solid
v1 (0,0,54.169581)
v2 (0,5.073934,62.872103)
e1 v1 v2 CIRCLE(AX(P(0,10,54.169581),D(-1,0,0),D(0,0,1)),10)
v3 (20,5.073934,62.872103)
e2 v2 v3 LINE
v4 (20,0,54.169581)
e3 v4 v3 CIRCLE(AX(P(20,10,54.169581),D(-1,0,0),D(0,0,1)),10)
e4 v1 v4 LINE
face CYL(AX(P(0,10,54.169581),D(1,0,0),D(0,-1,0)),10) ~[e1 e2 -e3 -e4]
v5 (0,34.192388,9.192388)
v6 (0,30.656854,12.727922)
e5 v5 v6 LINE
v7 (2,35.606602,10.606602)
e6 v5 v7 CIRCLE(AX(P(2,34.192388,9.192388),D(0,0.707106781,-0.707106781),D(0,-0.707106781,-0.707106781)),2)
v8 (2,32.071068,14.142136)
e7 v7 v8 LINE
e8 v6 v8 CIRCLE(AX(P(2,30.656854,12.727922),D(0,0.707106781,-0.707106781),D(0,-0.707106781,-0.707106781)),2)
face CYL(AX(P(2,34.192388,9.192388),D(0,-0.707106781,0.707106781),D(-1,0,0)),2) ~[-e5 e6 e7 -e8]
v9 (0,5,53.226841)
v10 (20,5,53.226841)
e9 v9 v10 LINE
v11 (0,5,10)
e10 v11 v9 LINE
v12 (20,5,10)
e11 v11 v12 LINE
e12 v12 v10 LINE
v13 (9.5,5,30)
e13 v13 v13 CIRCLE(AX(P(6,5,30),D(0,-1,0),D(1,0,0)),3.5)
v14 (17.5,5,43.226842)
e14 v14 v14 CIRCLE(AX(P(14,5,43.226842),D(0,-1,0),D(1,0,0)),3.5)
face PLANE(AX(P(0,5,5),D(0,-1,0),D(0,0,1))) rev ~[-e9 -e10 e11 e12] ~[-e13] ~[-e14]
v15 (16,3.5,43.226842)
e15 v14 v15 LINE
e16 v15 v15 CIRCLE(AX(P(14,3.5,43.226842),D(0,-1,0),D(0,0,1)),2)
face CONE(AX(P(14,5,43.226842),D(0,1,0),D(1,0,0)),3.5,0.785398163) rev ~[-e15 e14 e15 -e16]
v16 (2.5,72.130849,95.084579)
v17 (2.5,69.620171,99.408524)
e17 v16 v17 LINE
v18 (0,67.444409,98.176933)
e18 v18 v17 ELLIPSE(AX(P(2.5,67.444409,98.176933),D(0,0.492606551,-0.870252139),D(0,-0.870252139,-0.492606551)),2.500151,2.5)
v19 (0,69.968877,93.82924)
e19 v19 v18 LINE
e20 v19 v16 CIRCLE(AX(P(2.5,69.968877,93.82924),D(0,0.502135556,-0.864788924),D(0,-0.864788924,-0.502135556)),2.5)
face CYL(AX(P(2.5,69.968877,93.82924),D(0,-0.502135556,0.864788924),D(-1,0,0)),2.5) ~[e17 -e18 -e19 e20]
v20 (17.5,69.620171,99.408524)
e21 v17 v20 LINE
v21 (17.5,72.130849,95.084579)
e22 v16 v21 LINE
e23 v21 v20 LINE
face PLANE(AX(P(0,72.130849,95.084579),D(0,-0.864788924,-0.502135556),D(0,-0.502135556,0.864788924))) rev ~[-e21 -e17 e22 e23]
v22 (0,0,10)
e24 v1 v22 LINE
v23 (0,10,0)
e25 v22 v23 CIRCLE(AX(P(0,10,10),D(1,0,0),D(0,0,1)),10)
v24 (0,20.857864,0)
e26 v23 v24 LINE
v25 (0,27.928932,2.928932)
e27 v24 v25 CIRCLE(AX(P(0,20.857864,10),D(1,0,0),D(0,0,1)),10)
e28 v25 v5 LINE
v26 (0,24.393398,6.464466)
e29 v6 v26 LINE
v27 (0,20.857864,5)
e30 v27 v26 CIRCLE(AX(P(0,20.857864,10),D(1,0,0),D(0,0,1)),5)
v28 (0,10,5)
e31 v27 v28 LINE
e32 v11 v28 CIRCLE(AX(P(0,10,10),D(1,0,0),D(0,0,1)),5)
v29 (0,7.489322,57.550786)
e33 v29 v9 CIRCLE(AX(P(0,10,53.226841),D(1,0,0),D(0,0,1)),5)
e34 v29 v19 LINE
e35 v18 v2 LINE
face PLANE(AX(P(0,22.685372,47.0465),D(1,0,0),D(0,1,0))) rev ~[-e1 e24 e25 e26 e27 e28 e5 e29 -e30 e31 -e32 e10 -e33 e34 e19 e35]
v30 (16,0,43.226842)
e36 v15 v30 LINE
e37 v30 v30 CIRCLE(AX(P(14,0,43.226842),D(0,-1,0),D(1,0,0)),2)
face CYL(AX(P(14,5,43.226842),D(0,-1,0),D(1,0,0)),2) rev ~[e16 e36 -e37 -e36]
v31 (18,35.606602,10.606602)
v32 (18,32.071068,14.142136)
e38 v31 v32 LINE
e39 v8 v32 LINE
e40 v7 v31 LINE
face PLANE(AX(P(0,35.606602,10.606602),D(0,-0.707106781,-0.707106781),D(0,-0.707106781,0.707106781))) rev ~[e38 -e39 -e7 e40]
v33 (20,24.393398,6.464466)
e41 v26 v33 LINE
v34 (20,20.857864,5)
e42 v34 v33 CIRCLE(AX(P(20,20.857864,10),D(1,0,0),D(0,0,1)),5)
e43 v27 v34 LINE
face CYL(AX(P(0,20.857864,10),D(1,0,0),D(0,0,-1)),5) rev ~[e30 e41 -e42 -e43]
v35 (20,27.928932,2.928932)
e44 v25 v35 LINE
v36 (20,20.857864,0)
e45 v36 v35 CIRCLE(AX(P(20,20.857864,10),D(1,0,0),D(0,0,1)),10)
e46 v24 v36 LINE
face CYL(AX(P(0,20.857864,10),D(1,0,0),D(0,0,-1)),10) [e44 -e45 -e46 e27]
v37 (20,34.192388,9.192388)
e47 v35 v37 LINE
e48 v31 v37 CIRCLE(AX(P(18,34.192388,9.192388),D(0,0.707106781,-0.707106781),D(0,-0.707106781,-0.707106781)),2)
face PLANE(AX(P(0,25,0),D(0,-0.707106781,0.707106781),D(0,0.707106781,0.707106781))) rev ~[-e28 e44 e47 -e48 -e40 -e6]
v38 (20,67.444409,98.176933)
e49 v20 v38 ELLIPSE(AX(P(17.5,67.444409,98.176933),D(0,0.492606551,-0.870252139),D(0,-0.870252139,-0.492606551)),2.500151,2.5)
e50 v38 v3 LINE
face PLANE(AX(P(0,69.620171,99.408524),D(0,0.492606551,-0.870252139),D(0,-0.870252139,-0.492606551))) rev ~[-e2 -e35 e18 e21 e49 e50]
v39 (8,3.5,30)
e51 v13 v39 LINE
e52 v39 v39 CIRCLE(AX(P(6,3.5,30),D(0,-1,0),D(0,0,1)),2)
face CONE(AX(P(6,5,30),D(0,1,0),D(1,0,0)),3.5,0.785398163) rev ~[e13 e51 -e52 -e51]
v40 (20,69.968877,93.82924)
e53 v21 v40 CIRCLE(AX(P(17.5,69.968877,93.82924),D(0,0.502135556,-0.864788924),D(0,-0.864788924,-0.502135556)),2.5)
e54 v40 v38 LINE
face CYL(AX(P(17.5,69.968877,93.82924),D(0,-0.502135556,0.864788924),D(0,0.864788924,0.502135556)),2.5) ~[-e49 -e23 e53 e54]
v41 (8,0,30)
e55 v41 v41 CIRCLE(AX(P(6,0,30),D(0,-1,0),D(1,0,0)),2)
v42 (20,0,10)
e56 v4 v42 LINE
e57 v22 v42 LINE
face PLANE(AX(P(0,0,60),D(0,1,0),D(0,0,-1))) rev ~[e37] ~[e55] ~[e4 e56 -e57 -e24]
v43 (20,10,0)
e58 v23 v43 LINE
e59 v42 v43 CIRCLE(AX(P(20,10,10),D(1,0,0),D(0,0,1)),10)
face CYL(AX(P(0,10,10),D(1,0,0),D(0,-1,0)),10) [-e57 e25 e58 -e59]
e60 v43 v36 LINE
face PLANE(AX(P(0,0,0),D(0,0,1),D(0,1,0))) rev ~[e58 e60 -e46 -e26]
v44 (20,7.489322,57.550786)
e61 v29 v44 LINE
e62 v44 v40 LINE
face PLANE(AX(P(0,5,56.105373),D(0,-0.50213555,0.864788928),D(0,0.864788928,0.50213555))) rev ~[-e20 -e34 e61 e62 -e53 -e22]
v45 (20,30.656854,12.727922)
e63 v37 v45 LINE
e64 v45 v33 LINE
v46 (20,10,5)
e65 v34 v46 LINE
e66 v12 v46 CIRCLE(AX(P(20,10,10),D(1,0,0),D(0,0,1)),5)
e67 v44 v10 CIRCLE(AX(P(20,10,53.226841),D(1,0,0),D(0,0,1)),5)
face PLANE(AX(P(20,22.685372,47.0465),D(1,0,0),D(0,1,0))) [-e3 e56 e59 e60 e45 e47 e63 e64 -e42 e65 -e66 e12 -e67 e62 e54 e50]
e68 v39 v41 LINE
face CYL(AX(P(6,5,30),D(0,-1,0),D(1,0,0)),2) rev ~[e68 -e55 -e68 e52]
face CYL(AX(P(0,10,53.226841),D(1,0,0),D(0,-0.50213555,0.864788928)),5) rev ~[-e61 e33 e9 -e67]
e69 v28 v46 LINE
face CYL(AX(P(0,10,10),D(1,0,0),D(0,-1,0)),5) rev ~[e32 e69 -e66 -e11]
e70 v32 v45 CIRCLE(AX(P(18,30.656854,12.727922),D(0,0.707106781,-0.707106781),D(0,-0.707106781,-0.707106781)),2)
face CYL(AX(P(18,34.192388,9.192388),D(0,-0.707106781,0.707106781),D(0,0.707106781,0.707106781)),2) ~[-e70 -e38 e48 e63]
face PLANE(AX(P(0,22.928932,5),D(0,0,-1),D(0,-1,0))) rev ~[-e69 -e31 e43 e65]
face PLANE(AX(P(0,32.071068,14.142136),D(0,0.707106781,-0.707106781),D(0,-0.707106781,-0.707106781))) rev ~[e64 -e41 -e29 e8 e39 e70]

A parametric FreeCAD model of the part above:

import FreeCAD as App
import Part
import Sketcher
Q = App.Units.Quantity


def edges_at(feature, points):
    """Names of the edges that pass closest to the given points."""
    edges = feature.Shape.Edges
    near = lambda p: min(range(len(edges)), key=lambda i: edges[i].distToShape(Part.Vertex(*p))[0])
    return sorted({f"Edge{near(p) + 1}" for p in points})


def add_polygon(sketch, points):
    """Adds a closed chain of lines whose ends are joined by coincident constraints."""
    first, n = sketch.GeometryCount, len(points)
    for a, b in zip(points, points[1:] + points[:1]):
        sketch.addGeometry(Part.LineSegment(App.Vector(*a, 0), App.Vector(*b, 0)), False)
    for i in range(n):
        sketch.addConstraint(Sketcher.Constraint("Coincident", first + i, 2, first + (i + 1) % n, 1))

doc = App.newDocument("Part")
body = doc.addObject("PartDesign::Body", "Body")

# Sketch on YZ plane
sketch1 = body.newObject("Sketcher::SketchObject", "Sketch")
sketch1.AttachmentSupport = (doc.getObject("YZ_Plane"), [""])
sketch1.MapMode = "FlatFace"
add_polygon(sketch1, [(0, 60), (0, 0), (25, 0), (36, 11), (32, 14), (23, 5), (5, 5), (5, 56), (72, 95), (70, 99)])  # lines 0-9
sketch1.addConstraint([
    Sketcher.Constraint("Vertical", 0),
    Sketcher.Constraint("Horizontal", 1),
    Sketcher.Constraint("Horizontal", 5),
    Sketcher.Constraint("Vertical", 6),
    Sketcher.Constraint("Coincident", 0, 2, -1, 1),
    Sketcher.Constraint("Perpendicular", 2, 3),
    Sketcher.Constraint("Perpendicular", 3, 4),
    Sketcher.Constraint("Perpendicular", 7, 8),
    Sketcher.Constraint("Equal", 3, 8),
    Sketcher.Constraint("DistanceX", 1, 1, 1, 2, 25.0),
    Sketcher.Constraint("DistanceY", 0, 2, 0, 1, 60.0),
    Sketcher.Constraint("Angle", 2, Q("45 deg")),
    Sketcher.Constraint("Distance", 2, 15.0),
    Sketcher.Constraint("Distance", 3, 5.0),
    Sketcher.Constraint("Distance", 9, 80.0),
    Sketcher.Constraint("DistanceY", -1, 1, 4, 2, 5.0),
    Sketcher.Constraint("DistanceX", -1, 1, 5, 2, 5.0),
    Sketcher.Constraint("Distance", 7, 77.62686),
    Sketcher.Constraint("DistanceY", 6, 1, 6, 2, 51.105373),
])
pad1 = body.newObject("PartDesign::Pad", "Pad")
pad1.Profile = sketch1
pad1.Length = 20
doc.recompute()

fillet = body.newObject("PartDesign::Fillet", "Fillet")
fillet.Base = (pad1, edges_at(pad1, [(10, 0, 60), (10, 0, 0), (10, 25, 0)]))
fillet.Radius = 10
doc.recompute()

fillet2 = body.newObject("PartDesign::Fillet", "Fillet001")
fillet2.Base = (fillet, edges_at(fillet, [(10, 5, 56.105), (10, 5, 5)]))
fillet2.Radius = 5
doc.recompute()

fillet3 = body.newObject("PartDesign::Fillet", "Fillet002")
fillet3.Base = (fillet2, edges_at(fillet2, [(10, 22.929, 5)]))
fillet3.Radius = 5
doc.recompute()

fillet4 = body.newObject("PartDesign::Fillet", "Fillet003")
fillet4.Base = (fillet3, edges_at(fillet3, [(20, 33.839, 12.374), (0, 33.839, 12.374)]))
fillet4.Radius = 2
doc.recompute()

fillet5 = body.newObject("PartDesign::Fillet", "Fillet004")
fillet5.Base = (fillet4, edges_at(fillet4, [(20, 70.876, 97.247), (0, 70.876, 97.247)]))
fillet5.Radius = 2.5

# Sketch on XZ plane
sketch2 = body.newObject("Sketcher::SketchObject", "Sketch001")
sketch2.AttachmentSupport = (doc.getObject("XZ_Plane"), [""])
sketch2.MapMode = "FlatFace"
sketch2.AttachmentOffset = App.Placement(App.Vector(0, 0, -5), App.Rotation())
sketch2.addGeometry([
    Part.Circle(App.Vector(6, 30, 0), App.Vector(0, 0, 1), 2),
    Part.Circle(App.Vector(14, 43.2, 0), App.Vector(0, 0, 1), 2),
], False)
sketch2.addConstraint([
    Sketcher.Constraint("Equal", 0, 1),
    Sketcher.Constraint("Diameter", 0, 4.0),
    Sketcher.Constraint("DistanceX", -1, 1, 0, 3, 6.0),
    Sketcher.Constraint("DistanceY", -1, 1, 0, 3, 30.0),
    Sketcher.Constraint("DistanceX", -1, 1, 1, 3, 14.0),
    Sketcher.Constraint("DistanceY", -1, 1, 1, 3, 43.226842),
])
doc.recompute()
hole = body.newObject("PartDesign::Hole", "Hole")
hole.Profile = sketch2
hole.ThreadType = "None"
hole.Diameter = 4
hole.DepthType = "ThroughAll"
hole.HoleCutType = "Countersink"
hole.HoleCutDiameter = 7
hole.HoleCutCountersinkAngle = 90
hole.Reversed = True

doc.recompute()
